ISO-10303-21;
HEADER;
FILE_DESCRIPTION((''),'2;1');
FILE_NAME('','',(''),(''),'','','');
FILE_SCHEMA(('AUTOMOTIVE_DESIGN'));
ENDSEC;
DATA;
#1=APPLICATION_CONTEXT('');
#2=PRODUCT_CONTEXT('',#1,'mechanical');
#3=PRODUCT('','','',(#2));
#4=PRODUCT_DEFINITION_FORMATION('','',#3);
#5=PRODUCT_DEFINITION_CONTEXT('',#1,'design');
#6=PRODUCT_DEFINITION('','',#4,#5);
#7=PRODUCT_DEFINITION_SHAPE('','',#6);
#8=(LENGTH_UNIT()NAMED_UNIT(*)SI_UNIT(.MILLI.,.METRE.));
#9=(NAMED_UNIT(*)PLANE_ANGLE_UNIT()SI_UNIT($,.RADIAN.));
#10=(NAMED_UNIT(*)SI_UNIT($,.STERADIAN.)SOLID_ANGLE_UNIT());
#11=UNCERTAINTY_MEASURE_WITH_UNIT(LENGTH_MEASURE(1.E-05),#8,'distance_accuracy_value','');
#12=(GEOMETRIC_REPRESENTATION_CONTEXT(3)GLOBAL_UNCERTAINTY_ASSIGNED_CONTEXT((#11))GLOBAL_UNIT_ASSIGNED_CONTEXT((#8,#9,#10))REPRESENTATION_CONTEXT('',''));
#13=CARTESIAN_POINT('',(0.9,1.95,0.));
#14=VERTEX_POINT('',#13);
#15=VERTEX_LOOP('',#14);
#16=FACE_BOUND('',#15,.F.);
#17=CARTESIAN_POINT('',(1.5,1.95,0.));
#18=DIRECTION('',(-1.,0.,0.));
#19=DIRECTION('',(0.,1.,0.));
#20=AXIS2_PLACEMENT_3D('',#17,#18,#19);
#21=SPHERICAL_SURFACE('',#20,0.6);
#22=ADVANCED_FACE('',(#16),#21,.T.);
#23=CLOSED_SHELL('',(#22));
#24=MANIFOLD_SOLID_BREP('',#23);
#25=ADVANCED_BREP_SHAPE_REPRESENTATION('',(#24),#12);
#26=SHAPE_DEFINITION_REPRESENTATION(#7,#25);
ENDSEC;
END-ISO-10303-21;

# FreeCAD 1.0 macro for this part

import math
import FreeCAD as App
import Part
import Sketcher

V = App.Vector

doc = App.newDocument("Part")
body = doc.addObject("PartDesign::Body", "Body")

# Sketch on XY plane
sketch1 = body.newObject("Sketcher::SketchObject", "Sketch")
sketch1.AttachmentSupport = (doc.getObject("XY_Plane"), [""])
sketch1.MapMode = "FlatFace"
sketch1.addGeometry([
    Part.LineSegment(V(0.9, 1.9, 0), V(2.1, 1.9, 0)),
    Part.ArcOfCircle(Part.Circle(V(1.5, 1.9, 0), V(0, 0, 1), 0.6), math.radians(0), math.radians(180)),
], False)
sketch1.addGeometry(Part.LineSegment(V(0.9, 1.9, 0), V(2.1, 1.9, 0)), True)  # axis
sketch1.addConstraint([
    Sketcher.Constraint("Coincident", 0, 1, 1, 2),
    Sketcher.Constraint("Coincident", 1, 1, 0, 2),
    Sketcher.Constraint("Horizontal", 0),
    Sketcher.Constraint("Horizontal", 2),
    Sketcher.Constraint("Coincident", 2, 1, 0, 1),
    Sketcher.Constraint("Horizontal", 1, 3, 0, 1),
    Sketcher.Constraint("Equal", 0, 2),
    Sketcher.Constraint("Radius", 1, 0.6),
    Sketcher.Constraint("DistanceX", -1, 1, 1, 3, 1.5),
    Sketcher.Constraint("DistanceY", -1, 1, 1, 3, 1.95),
])
revolution = body.newObject("PartDesign::Revolution", "Revolution")
revolution.Profile = sketch1
revolution.ReferenceAxis = (sketch1, ["Axis0"])
revolution.Angle = 360

doc.recompute()
